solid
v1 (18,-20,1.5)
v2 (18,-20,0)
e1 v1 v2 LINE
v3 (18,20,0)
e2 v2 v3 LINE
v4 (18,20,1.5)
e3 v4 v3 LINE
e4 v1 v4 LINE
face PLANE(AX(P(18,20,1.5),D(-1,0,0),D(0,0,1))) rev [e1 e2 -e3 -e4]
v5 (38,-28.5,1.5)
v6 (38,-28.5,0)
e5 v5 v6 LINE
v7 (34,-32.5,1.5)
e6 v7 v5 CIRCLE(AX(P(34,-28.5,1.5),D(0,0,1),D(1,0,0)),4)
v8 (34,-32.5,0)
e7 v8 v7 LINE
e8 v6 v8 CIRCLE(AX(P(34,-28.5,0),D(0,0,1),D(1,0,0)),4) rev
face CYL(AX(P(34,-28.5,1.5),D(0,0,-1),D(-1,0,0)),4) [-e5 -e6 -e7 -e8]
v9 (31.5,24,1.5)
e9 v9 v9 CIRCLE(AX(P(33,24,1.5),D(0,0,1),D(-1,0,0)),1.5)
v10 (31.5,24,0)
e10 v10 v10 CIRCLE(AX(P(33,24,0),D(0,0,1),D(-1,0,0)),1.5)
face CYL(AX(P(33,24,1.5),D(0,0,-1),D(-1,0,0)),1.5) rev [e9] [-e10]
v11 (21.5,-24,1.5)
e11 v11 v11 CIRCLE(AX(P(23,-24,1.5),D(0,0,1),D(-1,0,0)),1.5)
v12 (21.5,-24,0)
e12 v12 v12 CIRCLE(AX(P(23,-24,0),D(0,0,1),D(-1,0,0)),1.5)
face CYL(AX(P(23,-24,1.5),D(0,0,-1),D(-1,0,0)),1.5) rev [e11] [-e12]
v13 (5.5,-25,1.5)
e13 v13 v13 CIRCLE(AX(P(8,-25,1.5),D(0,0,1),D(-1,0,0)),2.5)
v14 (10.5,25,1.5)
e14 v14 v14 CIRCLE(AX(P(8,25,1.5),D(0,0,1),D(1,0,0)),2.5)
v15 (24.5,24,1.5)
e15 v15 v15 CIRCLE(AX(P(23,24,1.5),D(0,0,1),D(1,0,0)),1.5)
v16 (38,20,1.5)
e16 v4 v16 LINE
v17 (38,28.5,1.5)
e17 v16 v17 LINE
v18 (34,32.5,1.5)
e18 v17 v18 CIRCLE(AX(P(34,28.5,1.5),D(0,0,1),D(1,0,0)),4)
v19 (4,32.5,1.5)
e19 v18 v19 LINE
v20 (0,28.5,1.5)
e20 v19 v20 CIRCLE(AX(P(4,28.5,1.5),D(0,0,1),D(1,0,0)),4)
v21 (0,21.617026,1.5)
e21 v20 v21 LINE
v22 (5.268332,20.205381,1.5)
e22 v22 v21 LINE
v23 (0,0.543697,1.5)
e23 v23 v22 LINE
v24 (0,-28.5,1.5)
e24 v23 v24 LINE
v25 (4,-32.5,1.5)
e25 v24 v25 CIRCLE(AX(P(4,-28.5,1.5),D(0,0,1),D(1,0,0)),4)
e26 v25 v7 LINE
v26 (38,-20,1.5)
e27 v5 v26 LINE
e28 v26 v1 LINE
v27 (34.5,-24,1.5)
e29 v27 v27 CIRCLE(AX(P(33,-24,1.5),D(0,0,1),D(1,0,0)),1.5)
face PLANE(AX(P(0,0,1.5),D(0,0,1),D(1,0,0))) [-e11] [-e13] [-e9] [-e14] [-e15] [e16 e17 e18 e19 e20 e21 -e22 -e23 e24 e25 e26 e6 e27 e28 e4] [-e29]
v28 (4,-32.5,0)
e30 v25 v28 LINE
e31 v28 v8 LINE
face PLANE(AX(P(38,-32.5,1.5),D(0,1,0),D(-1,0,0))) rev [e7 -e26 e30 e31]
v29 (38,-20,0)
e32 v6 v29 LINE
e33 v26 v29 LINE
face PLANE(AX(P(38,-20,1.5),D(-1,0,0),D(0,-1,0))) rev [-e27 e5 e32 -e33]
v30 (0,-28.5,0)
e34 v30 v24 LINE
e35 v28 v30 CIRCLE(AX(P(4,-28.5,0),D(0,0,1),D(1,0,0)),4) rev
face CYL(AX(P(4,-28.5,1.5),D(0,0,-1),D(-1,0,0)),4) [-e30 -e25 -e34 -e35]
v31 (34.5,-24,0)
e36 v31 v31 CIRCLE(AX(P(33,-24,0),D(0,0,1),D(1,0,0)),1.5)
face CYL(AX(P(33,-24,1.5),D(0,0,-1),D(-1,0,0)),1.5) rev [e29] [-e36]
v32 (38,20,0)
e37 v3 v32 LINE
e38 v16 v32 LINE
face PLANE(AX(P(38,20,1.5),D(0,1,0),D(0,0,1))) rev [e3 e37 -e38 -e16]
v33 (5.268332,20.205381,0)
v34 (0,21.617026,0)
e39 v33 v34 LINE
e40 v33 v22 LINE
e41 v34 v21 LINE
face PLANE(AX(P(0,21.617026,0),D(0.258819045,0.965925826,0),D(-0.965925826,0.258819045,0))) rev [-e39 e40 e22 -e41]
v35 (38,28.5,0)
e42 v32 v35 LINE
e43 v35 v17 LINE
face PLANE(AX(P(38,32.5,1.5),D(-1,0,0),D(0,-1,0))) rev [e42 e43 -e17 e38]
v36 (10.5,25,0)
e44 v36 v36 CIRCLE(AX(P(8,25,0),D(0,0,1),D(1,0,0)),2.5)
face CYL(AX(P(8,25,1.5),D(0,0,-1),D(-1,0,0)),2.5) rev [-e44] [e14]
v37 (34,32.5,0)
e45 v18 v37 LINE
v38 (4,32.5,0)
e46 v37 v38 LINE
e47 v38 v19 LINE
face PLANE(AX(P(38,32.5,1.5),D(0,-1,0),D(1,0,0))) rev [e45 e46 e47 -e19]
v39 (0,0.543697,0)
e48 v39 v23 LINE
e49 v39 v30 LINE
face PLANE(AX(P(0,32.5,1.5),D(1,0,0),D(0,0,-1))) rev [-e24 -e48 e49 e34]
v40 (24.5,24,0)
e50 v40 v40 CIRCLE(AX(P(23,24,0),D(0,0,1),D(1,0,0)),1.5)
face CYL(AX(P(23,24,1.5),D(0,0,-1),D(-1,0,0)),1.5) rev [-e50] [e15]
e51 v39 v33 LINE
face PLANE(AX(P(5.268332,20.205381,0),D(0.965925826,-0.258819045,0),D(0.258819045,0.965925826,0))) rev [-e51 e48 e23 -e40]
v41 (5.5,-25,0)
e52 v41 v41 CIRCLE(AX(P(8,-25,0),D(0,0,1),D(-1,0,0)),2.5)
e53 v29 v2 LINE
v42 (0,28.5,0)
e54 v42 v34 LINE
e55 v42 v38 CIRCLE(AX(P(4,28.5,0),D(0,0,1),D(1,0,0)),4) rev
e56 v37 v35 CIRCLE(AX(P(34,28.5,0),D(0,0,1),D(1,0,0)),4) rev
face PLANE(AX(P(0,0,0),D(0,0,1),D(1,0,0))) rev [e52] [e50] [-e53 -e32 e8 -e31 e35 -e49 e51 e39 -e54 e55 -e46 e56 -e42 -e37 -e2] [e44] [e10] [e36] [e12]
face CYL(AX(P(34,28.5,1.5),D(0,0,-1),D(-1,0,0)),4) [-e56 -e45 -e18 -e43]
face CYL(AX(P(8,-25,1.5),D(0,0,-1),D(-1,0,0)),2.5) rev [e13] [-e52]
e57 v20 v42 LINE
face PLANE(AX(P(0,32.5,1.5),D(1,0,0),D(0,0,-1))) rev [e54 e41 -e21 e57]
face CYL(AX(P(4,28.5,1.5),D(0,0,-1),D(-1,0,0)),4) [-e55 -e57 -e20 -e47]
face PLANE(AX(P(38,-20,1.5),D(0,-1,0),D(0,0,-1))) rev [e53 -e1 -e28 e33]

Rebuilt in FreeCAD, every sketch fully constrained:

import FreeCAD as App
import Part
import Sketcher
from FreeCAD import Vector
Q = App.Units.Quantity


def edges_at(feature, points):
    """Names of the edges that pass closest to the given points."""
    edges = feature.Shape.Edges
    near = lambda p: min(range(len(edges)), key=lambda i: edges[i].distToShape(Part.Vertex(*p))[0])
    return sorted({f"Edge{near(p) + 1}" for p in points})


def add_polygon(sketch, points):
    """Adds a closed chain of lines whose ends are joined by coincident constraints."""
    first, n = sketch.GeometryCount, len(points)
    for a, b in zip(points, points[1:] + points[:1]):
        sketch.addGeometry(Part.LineSegment(App.Vector(*a, 0), App.Vector(*b, 0)), False)
    for i in range(n):
        sketch.addConstraint(Sketcher.Constraint("Coincident", first + i, 2, first + (i + 1) % n, 1))

doc = App.newDocument("Part")
body = doc.addObject("PartDesign::Body", "Body")

sketch1 = body.newObject("Sketcher::SketchObject", "Sketch")
sketch1.AttachmentSupport = (doc.getObject("XY_Plane"), [""])
sketch1.MapMode = "FlatFace"
add_polygon(sketch1, [(38, -32.5), (38, -20), (18, -20), (18, 20), (38, 20), (38, 32.5), (0, 32.5), (0, -32.5)])
sketch1.addGeometry(Part.Circle(Vector(33, -24, 0), Vector(0, 0, 1), 1.5), False)
sketch1.addGeometry(Part.Circle(Vector(23, -24, 0), Vector(0, 0, 1), 1.5), False)
sketch1.addGeometry(Part.Circle(Vector(8, -25, 0), Vector(0, 0, 1), 2.5), False)
sketch1.addGeometry(Part.Circle(Vector(33, 24, 0), Vector(0, 0, 1), 1.5), False)
sketch1.addGeometry(Part.Circle(Vector(23, 24, 0), Vector(0, 0, 1), 1.5), False)
sketch1.addGeometry(Part.Circle(Vector(8, 25, 0), Vector(0, 0, 1), 2.5), False)
sketch1.addConstraint([
    Sketcher.Constraint("Vertical", 0),
    Sketcher.Constraint("Horizontal", 1),
    Sketcher.Constraint("Vertical", 2),
    Sketcher.Constraint("Horizontal", 3),
    Sketcher.Constraint("Vertical", 4),
    Sketcher.Constraint("Horizontal", 5),
    Sketcher.Constraint("Vertical", 6),
    Sketcher.Constraint("Horizontal", 7),
    Sketcher.Constraint("Equal", 8, 9),
    Sketcher.Constraint("Equal", 9, 11),
    Sketcher.Constraint("Equal", 11, 12),
    Sketcher.Constraint("Equal", 10, 13),
    Sketcher.Constraint("Symmetric", 5, 2, 6, 2, -1, 1),
    Sketcher.Constraint("Symmetric", 8, 3, 11, 3, -1),
    Sketcher.Constraint("Symmetric", 9, 3, 12, 3, -1),
    Sketcher.Constraint("Symmetric", 10, 3, 13, 3, -1),
    Sketcher.Constraint("Symmetric", 0, 2, 3, 2, -1),
    Sketcher.Constraint("Horizontal", 8, 3, 9, 3),
    Sketcher.Constraint("Diameter", 8, Q("3 mm")),
    Sketcher.Constraint("Diameter", 10, Q("5 mm")),
    Sketcher.Constraint("DistanceX", 1, 2, 1, 1, Q("20 mm")),
    Sketcher.Constraint("DistanceX", 5, 2, 5, 1, Q("38 mm")),
    Sketcher.Constraint("DistanceY", 2, 1, 2, 2, Q("40 mm")),
    Sketcher.Constraint("DistanceY", 6, 2, 6, 1, Q("65 mm")),
    Sketcher.Constraint("DistanceX", -1, 1, 8, 3, Q("33 mm")),
    Sketcher.Constraint("DistanceY", 8, 3, -1, 1, Q("24 mm")),
    Sketcher.Constraint("DistanceX", -1, 1, 9, 3, Q("23 mm")),
    Sketcher.Constraint("DistanceX", -1, 1, 10, 3, Q("8 mm")),
    Sketcher.Constraint("DistanceY", 10, 3, -1, 1, Q("25 mm")),
])
pad1 = body.newObject("PartDesign::Pad", "Pad")
pad1.Profile = sketch1
pad1.Length = 1.5
doc.recompute()

fillet = body.newObject("PartDesign::Fillet", "Fillet")
fillet.Base = (pad1, edges_at(pad1, [
    (38, -32.5, 0.75),
    (0, -32.5, 0.75),
    (0, 32.5, 0.75),
    (38, 32.5, 0.75),
]))
fillet.Radius = 4

sketch2 = body.newObject("Sketcher::SketchObject", "Sketch001")
sketch2.AttachmentSupport = (doc.getObject("XY_Plane"), [""])
sketch2.MapMode = "FlatFace"
sketch2.AttachmentOffset = App.Placement(Vector(0, 0, 1.5), App.Rotation())
add_polygon(sketch2, [(5, 20), (0, 22), (0, 1)])
sketch2.addConstraint([
    Sketcher.Constraint("Vertical", 1),
    Sketcher.Constraint("PointOnObject", 0, 2, -2),
    Sketcher.Constraint("Perpendicular", 0, 2),
    Sketcher.Constraint("Angle", 0, Q("165 deg")),
    Sketcher.Constraint("DistanceY", 1, 2, 1, 1, Q("21.073329 mm")),
    Sketcher.Constraint("DistanceY", -1, 1, 2, 2, Q("20.205381 mm")),
])
pocket1 = body.newObject("PartDesign::Pocket", "Pocket")
pocket1.Profile = sketch2
pocket1.Type = "ThroughAll"

doc.recompute()
